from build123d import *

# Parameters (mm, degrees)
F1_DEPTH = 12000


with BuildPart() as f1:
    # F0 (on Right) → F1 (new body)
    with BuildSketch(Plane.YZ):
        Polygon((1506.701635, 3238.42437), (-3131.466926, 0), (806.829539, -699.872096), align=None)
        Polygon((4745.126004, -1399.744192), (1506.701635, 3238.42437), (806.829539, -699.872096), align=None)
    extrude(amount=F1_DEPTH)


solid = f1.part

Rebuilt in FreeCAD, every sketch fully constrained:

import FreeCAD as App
import Part
import Sketcher

doc = App.newDocument("Part")
params = doc.addObject("Spreadsheet::Sheet", "Params")
for row, (alias, value) in enumerate([
    ("sketch1_length", "7999.999999 mm"),
    ("pad1_length", "12000 mm"),
], start=1):
    params.set(f"A{row}", alias)
    params.set(f"B{row}", "=" + value)
    params.setAlias(f"B{row}", alias)

body = doc.addObject("PartDesign::Body", "Body")

sketch1 = doc.addObject("Sketcher::SketchObject", "Sketch")
body.addObject(sketch1)
sketch1.AttachmentSupport = (doc.YZ_Plane, [""])
sketch1.MapMode = "FlatFace"
sketch1.addGeometry([
    Part.LineSegment(App.Vector(1507, 3238, 0), App.Vector(-3131, 0, 0)),
    Part.LineSegment(App.Vector(-3131, 0, 0), App.Vector(4745, -1400, 0)),
    Part.LineSegment(App.Vector(4745, -1400, 0), App.Vector(1507, 3238, 0)),
], False)
sketch1.addConstraint([
    Sketcher.Constraint("Coincident", 0, 2, 1, 1),
    Sketcher.Constraint("Coincident", 1, 2, 2, 1),
    Sketcher.Constraint("Coincident", 2, 2, 0, 1),
    Sketcher.Constraint("PointOnObject", 0, 2, -1),
    Sketcher.Constraint("Perpendicular", 0, 2),
    Sketcher.Constraint("Equal", 0, 2),
    Sketcher.Constraint("Distance", 1, 7999.999999),
    Sketcher.Constraint("DistanceY", -1, 1, 2, 2, 3238.42437),
    Sketcher.Constraint("DistanceX", 0, 2, -1, 1, 3131.466926),
])
sketch1.setExpression("Constraints[6]", "Params.sketch1_length")
pad1 = doc.addObject("PartDesign::Pad", "Pad")
body.addObject(pad1)
pad1.Profile = sketch1
pad1.setExpression("Length", "Params.pad1_length")

doc.recompute()
